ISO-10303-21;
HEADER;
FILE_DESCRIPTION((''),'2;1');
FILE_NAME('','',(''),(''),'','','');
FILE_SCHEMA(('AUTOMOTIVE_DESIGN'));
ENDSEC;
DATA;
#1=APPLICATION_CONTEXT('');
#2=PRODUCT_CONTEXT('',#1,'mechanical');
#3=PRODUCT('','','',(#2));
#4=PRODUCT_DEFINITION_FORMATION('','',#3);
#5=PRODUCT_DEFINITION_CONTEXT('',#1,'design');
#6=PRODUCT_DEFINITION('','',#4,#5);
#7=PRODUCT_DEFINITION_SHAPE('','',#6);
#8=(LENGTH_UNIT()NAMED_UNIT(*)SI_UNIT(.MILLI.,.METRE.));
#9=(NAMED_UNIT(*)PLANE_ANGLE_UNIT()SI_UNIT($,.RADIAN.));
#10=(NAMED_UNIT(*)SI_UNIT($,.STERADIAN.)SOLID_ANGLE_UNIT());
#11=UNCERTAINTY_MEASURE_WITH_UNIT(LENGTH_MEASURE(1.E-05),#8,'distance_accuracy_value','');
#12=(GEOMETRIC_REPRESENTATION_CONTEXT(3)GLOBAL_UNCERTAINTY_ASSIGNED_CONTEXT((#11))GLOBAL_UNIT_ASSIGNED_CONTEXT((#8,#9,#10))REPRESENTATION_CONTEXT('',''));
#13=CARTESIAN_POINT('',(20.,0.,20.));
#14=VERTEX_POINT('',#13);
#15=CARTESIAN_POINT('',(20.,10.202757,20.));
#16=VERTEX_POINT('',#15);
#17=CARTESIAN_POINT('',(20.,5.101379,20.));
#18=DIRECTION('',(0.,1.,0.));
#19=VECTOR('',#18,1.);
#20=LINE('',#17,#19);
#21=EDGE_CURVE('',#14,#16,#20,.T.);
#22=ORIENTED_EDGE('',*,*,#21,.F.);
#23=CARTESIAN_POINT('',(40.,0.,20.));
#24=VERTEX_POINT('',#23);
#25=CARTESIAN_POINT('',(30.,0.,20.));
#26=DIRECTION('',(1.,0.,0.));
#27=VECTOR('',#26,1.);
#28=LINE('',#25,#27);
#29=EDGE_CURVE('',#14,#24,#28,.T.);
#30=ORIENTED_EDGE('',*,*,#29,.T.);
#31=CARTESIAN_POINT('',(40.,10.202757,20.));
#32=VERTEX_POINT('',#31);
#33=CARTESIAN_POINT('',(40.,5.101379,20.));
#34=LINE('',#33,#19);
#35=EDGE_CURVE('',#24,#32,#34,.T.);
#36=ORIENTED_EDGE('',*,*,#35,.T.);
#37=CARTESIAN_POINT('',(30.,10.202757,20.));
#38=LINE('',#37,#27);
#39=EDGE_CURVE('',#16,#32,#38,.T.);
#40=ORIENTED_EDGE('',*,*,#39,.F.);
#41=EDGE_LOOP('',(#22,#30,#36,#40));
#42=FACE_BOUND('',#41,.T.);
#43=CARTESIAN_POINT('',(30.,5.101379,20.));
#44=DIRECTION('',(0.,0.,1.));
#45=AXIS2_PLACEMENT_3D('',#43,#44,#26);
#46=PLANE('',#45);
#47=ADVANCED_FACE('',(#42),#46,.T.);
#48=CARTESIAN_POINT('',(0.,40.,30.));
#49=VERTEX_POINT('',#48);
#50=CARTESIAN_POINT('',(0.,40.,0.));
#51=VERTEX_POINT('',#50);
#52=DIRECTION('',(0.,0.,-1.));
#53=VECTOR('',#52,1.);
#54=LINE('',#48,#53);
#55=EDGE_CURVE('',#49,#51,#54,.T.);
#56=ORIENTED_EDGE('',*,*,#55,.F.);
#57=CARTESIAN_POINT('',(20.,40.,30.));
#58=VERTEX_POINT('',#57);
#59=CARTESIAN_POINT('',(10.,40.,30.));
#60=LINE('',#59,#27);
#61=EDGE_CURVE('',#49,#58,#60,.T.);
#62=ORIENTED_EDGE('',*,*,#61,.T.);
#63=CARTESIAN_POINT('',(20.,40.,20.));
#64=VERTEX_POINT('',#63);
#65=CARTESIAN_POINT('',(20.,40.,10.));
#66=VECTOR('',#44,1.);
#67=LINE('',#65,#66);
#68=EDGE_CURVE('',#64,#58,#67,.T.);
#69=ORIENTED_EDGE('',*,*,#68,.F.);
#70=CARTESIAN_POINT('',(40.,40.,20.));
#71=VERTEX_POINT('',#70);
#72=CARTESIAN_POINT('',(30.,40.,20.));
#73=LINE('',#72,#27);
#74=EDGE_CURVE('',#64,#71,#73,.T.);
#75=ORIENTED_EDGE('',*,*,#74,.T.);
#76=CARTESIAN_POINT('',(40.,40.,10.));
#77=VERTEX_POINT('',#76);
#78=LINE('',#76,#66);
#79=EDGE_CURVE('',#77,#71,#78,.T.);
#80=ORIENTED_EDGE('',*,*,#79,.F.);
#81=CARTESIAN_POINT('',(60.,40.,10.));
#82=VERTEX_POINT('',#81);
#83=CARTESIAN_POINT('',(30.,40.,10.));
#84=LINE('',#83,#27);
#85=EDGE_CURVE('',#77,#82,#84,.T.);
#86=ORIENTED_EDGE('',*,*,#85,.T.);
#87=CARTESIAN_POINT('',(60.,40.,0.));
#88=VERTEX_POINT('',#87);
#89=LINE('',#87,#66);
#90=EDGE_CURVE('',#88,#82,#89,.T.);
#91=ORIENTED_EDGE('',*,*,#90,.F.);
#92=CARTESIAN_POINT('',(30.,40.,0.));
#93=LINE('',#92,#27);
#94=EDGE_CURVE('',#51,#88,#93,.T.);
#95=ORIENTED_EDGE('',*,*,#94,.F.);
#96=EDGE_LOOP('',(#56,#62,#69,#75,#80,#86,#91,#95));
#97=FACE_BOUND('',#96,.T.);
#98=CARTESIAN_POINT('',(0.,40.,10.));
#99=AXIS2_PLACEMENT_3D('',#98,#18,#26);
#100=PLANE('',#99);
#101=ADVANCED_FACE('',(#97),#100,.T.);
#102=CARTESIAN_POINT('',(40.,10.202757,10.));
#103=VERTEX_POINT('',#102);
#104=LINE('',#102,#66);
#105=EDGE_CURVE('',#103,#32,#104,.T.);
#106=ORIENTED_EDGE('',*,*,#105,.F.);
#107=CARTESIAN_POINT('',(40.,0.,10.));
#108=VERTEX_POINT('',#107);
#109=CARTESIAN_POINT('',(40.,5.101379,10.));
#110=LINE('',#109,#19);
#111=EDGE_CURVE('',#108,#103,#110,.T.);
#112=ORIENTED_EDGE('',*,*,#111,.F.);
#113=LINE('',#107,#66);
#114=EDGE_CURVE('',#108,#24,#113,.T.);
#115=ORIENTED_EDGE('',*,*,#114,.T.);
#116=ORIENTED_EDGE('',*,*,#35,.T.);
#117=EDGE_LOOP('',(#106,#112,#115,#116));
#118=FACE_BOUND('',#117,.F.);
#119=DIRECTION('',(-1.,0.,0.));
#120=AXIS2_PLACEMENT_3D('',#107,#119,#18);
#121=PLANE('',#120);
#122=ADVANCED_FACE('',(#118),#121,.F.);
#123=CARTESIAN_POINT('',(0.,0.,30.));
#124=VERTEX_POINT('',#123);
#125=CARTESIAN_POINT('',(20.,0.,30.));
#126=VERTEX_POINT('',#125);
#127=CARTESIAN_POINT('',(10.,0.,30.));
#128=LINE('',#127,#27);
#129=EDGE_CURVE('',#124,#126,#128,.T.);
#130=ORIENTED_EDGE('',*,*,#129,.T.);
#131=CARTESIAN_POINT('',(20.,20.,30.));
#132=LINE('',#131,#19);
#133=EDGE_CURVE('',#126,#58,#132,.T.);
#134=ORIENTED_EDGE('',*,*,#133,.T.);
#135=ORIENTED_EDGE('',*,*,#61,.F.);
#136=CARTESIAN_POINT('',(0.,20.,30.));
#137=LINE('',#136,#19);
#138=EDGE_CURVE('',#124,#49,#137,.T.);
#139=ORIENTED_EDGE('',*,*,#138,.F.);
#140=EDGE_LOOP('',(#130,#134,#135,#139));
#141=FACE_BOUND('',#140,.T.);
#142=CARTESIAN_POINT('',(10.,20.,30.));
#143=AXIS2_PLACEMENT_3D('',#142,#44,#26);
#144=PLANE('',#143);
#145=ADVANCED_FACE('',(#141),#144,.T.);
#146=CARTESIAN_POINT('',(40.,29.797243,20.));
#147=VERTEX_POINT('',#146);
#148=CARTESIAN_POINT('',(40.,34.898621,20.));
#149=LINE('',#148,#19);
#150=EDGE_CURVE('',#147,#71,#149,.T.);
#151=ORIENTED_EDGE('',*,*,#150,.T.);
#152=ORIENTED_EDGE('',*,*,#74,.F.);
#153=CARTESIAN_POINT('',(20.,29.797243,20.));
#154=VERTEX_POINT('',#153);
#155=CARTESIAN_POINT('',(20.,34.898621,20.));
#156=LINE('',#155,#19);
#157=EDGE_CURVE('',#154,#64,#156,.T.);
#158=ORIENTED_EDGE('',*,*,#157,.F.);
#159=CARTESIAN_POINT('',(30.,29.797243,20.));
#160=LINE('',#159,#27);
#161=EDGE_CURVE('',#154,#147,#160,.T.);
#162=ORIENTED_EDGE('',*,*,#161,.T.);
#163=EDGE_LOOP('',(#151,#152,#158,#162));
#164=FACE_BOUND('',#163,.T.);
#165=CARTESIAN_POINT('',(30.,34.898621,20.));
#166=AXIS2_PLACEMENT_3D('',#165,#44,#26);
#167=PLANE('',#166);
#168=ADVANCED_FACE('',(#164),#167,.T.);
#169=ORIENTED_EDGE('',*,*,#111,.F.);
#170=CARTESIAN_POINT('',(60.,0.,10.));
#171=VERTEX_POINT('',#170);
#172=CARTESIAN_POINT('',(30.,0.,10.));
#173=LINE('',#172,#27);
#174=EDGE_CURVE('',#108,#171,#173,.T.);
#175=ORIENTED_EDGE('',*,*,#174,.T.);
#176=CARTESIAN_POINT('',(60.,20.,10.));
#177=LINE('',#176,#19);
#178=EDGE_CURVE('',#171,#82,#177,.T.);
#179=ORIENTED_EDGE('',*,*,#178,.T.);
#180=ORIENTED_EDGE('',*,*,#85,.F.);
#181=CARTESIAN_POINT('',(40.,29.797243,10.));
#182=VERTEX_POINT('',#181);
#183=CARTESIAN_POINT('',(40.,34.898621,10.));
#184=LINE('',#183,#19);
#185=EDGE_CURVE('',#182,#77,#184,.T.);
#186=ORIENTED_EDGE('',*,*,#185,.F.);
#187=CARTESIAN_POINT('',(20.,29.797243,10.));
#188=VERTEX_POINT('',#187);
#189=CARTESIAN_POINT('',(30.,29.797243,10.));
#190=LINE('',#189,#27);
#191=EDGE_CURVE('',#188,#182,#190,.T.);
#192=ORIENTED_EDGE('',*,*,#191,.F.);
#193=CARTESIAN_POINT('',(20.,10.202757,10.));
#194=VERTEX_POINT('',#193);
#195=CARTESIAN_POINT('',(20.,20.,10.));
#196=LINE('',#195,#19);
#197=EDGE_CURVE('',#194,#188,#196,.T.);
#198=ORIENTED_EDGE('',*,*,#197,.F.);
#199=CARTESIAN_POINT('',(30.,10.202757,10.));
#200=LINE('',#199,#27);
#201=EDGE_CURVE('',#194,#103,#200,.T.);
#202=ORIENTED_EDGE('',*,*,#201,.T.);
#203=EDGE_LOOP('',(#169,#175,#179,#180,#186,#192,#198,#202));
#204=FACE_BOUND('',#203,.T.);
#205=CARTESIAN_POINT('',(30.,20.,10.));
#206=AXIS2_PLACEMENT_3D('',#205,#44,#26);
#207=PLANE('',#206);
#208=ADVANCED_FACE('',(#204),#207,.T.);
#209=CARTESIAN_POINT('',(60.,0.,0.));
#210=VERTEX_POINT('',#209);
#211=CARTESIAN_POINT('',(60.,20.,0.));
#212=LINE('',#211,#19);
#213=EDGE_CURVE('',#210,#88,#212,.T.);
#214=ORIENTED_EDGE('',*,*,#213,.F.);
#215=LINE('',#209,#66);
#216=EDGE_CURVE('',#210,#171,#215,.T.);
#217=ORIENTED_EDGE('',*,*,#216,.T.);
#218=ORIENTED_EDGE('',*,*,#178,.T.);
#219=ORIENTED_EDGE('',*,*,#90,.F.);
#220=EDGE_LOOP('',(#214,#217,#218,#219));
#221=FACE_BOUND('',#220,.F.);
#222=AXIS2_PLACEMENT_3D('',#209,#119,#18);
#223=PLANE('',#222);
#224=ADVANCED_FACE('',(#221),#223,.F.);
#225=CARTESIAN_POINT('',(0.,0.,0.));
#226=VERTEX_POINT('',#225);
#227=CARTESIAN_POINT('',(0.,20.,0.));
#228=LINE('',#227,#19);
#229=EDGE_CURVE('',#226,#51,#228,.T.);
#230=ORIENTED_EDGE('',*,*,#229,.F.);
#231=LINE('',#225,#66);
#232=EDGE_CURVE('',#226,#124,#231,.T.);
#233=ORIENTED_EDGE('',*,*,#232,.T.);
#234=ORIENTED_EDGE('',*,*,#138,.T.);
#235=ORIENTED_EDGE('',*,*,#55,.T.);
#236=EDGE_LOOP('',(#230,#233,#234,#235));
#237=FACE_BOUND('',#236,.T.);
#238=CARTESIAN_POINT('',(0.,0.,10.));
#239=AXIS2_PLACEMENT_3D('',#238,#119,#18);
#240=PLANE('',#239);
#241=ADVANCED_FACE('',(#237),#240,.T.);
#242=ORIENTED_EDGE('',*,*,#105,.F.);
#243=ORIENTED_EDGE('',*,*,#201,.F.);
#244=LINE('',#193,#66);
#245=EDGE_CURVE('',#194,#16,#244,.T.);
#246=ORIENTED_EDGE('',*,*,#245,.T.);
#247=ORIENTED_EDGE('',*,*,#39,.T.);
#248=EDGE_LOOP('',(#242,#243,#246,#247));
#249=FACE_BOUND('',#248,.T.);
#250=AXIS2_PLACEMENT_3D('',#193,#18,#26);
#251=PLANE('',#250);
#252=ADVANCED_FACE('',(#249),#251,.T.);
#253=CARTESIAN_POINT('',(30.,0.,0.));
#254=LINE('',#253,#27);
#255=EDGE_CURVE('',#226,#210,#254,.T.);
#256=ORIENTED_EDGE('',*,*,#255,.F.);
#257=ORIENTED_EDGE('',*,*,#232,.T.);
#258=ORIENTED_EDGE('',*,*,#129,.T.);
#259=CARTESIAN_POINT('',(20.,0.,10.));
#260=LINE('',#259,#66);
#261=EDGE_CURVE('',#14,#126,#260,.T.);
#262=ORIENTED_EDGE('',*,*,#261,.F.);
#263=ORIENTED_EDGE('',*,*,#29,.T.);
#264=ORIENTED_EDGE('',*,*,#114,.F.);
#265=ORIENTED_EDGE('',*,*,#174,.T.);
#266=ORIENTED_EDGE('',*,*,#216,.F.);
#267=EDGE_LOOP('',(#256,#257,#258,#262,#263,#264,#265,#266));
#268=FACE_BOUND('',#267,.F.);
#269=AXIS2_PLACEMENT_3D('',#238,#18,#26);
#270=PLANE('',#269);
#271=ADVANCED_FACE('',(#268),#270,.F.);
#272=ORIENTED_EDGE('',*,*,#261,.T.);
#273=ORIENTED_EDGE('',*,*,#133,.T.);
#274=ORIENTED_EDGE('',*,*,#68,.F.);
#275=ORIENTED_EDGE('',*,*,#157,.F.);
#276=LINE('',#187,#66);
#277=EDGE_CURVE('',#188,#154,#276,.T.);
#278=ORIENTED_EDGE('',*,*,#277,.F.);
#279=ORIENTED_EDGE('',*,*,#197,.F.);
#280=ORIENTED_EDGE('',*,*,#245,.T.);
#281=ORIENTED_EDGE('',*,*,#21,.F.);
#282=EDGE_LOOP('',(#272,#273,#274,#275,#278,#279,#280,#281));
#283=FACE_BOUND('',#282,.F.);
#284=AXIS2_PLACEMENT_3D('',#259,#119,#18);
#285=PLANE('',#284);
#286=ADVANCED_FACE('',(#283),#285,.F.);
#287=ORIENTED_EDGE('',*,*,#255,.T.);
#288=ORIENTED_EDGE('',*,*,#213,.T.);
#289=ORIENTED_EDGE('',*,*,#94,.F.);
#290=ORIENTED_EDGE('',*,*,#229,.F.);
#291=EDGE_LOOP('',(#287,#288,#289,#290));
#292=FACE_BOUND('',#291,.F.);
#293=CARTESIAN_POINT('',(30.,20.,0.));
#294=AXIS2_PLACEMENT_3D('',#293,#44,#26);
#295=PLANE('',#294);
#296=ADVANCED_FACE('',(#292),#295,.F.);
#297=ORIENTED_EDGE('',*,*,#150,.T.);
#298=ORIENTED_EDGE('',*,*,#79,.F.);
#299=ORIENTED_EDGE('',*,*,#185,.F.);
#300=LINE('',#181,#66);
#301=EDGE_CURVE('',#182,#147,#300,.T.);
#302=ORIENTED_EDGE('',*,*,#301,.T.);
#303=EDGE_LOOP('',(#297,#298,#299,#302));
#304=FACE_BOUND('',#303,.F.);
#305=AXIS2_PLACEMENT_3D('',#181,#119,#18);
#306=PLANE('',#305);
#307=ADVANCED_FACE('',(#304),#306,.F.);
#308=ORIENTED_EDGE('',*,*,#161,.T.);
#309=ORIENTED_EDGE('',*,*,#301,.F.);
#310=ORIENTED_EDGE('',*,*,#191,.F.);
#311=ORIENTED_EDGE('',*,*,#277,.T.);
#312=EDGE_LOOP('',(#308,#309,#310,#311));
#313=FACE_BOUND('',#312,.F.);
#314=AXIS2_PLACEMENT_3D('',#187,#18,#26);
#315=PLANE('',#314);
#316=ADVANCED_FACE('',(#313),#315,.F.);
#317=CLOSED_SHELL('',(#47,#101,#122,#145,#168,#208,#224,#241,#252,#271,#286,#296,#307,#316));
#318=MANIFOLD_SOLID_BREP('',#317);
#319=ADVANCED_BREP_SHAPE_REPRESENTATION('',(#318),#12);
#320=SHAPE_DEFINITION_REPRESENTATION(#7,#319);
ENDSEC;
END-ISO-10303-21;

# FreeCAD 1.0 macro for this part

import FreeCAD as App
import Part
import Sketcher

V = App.Vector


def add_polygon(sketch, points):
    """Adds a closed chain of lines whose ends are joined by coincident constraints."""
    first, n = sketch.GeometryCount, len(points)
    for a, b in zip(points, points[1:] + points[:1]):
        sketch.addGeometry(Part.LineSegment(App.Vector(*a, 0), App.Vector(*b, 0)), False)
    for i in range(n):
        sketch.addConstraint(Sketcher.Constraint("Coincident", first + i, 2, first + (i + 1) % n, 1))

doc = App.newDocument("Part")
body = doc.addObject("PartDesign::Body", "Body")

sketch1 = body.newObject("Sketcher::SketchObject", "Sketch")
sketch1.AttachmentSupport = (doc.getObject("XY_Plane"), [""])
sketch1.MapMode = "FlatFace"
add_polygon(sketch1, [(0, 40), (0, 0), (60, 0), (60, 40)])
sketch1.addConstraint(Sketcher.Constraint("Vertical", 0))
sketch1.addConstraint(Sketcher.Constraint("Horizontal", 1))
sketch1.addConstraint(Sketcher.Constraint("Vertical", 2))
sketch1.addConstraint(Sketcher.Constraint("Horizontal", 3))
sketch1.addConstraint(Sketcher.Constraint("Coincident", 0, 2, -1, 1))
sketch1.addConstraint(Sketcher.Constraint("DistanceX", 1, 1, 1, 2, 60.0))
sketch1.addConstraint(Sketcher.Constraint("DistanceY", 0, 2, 0, 1, 40.0))
pad1 = body.newObject("PartDesign::Pad", "Pad")
pad1.Profile = sketch1
pad1.Length = 10

sketch2 = body.newObject("Sketcher::SketchObject", "Sketch001")
sketch2.AttachmentSupport = (doc.getObject("XY_Plane"), [""])
sketch2.MapMode = "FlatFace"
sketch2.AttachmentOffset = App.Placement(V(0, 0, 10), App.Rotation())
add_polygon(sketch2, [(0, 40), (0, 0), (20, 0), (20, 40)])
sketch2.addConstraint(Sketcher.Constraint("Vertical", 0))
sketch2.addConstraint(Sketcher.Constraint("Horizontal", 1))
sketch2.addConstraint(Sketcher.Constraint("Vertical", 2))
sketch2.addConstraint(Sketcher.Constraint("Horizontal", 3))
sketch2.addConstraint(Sketcher.Constraint("Coincident", 0, 2, -1, 1))
sketch2.addConstraint(Sketcher.Constraint("DistanceX", 1, 1, 1, 2, 20.0))
sketch2.addConstraint(Sketcher.Constraint("DistanceY", 0, 2, 0, 1, 40.0))
pad2 = body.newObject("PartDesign::Pad", "Pad001")
pad2.Profile = sketch2
pad2.Length = 20

sketch3 = body.newObject("Sketcher::SketchObject", "Sketch002")
sketch3.AttachmentSupport = (doc.getObject("XY_Plane"), [""])
sketch3.MapMode = "FlatFace"
sketch3.AttachmentOffset = App.Placement(V(0, 0, 10), App.Rotation())
add_polygon(sketch3, [(20, 40), (20, 30), (40, 30), (40, 40)])
add_polygon(sketch3, [(20, 10), (20, 0), (40, 0), (40, 10)])
sketch3.addConstraint(Sketcher.Constraint("Vertical", 0))
sketch3.addConstraint(Sketcher.Constraint("Horizontal", 1))
sketch3.addConstraint(Sketcher.Constraint("Vertical", 2))
sketch3.addConstraint(Sketcher.Constraint("Horizontal", 3))
sketch3.addConstraint(Sketcher.Constraint("Vertical", 4))
sketch3.addConstraint(Sketcher.Constraint("Horizontal", 5))
sketch3.addConstraint(Sketcher.Constraint("Vertical", 6))
sketch3.addConstraint(Sketcher.Constraint("Horizontal", 7))
sketch3.addConstraint(Sketcher.Constraint("PointOnObject", 4, 2, -1))
sketch3.addConstraint(Sketcher.Constraint("Vertical", 3, 2, 4, 2))
sketch3.addConstraint(Sketcher.Constraint("Vertical", 2, 2, 5, 2))
sketch3.addConstraint(Sketcher.Constraint("Equal", 2, 4))
sketch3.addConstraint(Sketcher.Constraint("DistanceX", 1, 1, 1, 2, 20.0))
sketch3.addConstraint(Sketcher.Constraint("DistanceX", -1, 1, 0, 2, 20.0))
sketch3.addConstraint(Sketcher.Constraint("DistanceY", -1, 1, 2, 2, 40.0))
sketch3.addConstraint(Sketcher.Constraint("DistanceY", 0, 2, 0, 1, 10.202757))
pad3 = body.newObject("PartDesign::Pad", "Pad002")
pad3.Profile = sketch3
pad3.Length = 10

sketch4 = body.newObject("Sketcher::SketchObject", "Sketch003")
sketch4.AttachmentSupport = (doc.getObject("XY_Plane"), [""])
sketch4.MapMode = "FlatFace"
sketch4.AttachmentOffset = App.Placement(V(0, 0, 10), App.Rotation())
add_polygon(sketch4, [(20, 40), (20, 30), (40, 30), (40, 40)])
sketch4.addConstraint(Sketcher.Constraint("Vertical", 0))
sketch4.addConstraint(Sketcher.Constraint("Horizontal", 1))
sketch4.addConstraint(Sketcher.Constraint("Vertical", 2))
sketch4.addConstraint(Sketcher.Constraint("Horizontal", 3))
sketch4.addConstraint(Sketcher.Constraint("DistanceX", 1, 1, 1, 2, 20.0))
sketch4.addConstraint(Sketcher.Constraint("DistanceX", -1, 1, 0, 2, 20.0))
sketch4.addConstraint(Sketcher.Constraint("DistanceY", -1, 1, 2, 2, 40.0))
sketch4.addConstraint(Sketcher.Constraint("DistanceY", 0, 2, 0, 1, 10.202757))
pad4 = body.newObject("PartDesign::Pad", "Pad003")
pad4.Profile = sketch4
pad4.Length = 10

doc.recompute()
